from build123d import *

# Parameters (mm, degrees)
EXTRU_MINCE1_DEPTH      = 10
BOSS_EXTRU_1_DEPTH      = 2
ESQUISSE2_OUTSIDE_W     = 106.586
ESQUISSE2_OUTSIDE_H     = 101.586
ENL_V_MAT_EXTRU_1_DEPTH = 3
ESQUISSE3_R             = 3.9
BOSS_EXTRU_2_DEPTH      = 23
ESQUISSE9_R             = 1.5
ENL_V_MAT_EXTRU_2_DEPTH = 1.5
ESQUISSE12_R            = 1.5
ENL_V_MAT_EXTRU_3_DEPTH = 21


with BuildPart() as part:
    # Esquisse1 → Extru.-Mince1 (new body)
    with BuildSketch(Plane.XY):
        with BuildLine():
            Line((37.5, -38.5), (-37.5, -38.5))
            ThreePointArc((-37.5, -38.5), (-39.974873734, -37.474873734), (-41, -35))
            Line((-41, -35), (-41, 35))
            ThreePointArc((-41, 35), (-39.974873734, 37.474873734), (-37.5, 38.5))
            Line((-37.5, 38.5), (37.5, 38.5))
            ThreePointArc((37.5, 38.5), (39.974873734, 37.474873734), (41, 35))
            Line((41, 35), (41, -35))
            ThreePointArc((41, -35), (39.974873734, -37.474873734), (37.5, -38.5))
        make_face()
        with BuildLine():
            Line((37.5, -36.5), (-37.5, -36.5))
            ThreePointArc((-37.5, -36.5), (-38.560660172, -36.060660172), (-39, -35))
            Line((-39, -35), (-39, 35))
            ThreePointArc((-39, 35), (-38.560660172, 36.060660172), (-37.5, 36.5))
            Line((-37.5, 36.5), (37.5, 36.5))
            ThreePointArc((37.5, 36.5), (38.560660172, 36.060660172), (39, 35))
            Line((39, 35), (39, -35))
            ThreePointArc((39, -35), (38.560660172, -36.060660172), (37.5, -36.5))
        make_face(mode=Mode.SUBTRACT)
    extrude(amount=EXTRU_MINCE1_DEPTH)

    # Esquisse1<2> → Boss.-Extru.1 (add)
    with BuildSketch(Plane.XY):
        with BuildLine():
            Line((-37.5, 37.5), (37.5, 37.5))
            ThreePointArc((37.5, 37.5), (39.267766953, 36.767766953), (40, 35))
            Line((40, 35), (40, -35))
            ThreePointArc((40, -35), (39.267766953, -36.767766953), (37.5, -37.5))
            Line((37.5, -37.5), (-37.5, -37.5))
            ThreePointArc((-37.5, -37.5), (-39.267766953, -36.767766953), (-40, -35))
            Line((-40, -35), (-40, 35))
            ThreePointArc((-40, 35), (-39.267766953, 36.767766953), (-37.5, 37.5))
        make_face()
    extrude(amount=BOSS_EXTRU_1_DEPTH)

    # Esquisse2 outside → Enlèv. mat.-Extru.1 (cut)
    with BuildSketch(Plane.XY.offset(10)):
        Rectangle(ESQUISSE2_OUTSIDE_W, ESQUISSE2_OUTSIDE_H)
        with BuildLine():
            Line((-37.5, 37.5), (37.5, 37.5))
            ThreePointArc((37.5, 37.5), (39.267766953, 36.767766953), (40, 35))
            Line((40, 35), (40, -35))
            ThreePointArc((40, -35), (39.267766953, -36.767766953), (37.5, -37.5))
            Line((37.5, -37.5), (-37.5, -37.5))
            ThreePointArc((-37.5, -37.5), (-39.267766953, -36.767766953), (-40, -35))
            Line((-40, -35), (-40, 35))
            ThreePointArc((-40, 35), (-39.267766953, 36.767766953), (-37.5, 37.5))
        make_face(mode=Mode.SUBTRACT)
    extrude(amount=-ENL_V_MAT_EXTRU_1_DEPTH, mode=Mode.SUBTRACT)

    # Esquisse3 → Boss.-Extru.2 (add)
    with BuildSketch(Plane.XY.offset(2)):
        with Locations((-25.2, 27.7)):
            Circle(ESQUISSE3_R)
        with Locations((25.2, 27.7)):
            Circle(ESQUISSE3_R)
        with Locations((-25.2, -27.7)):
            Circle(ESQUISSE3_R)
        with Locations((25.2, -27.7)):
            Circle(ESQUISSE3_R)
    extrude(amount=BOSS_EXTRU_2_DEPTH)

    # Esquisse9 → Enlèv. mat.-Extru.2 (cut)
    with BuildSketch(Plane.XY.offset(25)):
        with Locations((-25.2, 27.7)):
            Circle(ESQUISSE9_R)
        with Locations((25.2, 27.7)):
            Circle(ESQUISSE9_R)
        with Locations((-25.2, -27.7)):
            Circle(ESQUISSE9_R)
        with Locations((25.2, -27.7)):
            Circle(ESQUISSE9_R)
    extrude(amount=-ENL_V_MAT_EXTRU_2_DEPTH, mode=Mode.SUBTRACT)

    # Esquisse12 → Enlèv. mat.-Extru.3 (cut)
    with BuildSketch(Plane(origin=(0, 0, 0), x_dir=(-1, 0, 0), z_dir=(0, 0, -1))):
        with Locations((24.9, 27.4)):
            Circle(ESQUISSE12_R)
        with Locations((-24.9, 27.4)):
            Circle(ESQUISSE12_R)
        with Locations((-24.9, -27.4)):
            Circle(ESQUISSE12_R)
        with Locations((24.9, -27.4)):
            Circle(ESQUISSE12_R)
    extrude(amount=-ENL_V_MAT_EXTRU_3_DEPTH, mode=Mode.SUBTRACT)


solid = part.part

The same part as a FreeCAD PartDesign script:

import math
import FreeCAD as App
import Part
import Sketcher

doc = App.newDocument("Part")
params = doc.addObject("Spreadsheet::Sheet", "Params")
for row, (alias, value) in enumerate([
    ("sketch1_radius", "3.5 mm"),
    ("sketch1_radius2", "1.5 mm"),
    ("sketch1_width", "75 mm"),
    ("sketch1_height", "70 mm"),
    ("pad1_length", "10 mm"),
    ("sketch2_radius", "2.5 mm"),
    ("sketch2_width", "75 mm"),
    ("sketch2_height", "70 mm"),
    ("pad2_length", "2 mm"),
    ("sketch3_radius", "2.5 mm"),
    ("sketch3_width", "75 mm"),
    ("sketch3_height", "70 mm"),
    ("pocket1_length", "3 mm"),
    ("sketch4_diameter", "7.8 mm"),
    ("pad3_length", "23 mm"),
    ("sketch5_diameter", "3 mm"),
    ("pocket2_length", "1.5 mm"),
    ("sketch6_diameter", "3 mm"),
    ("pocket3_length", "21 mm"),
], start=1):
    params.set(f"A{row}", alias)
    params.set(f"B{row}", "=" + value)
    params.setAlias(f"B{row}", alias)

body = doc.addObject("PartDesign::Body", "Body")

# Sketch on XY plane
sketch1 = body.newObject("Sketcher::SketchObject", "Sketch")
sketch1.AttachmentSupport = (doc.getObject("XY_Plane"), [""])
sketch1.MapMode = "FlatFace"
sketch1.addGeometry(Part.LineSegment(App.Vector(-37.5, -38.5, 0), App.Vector(37.5, -38.5, 0)), False)
sketch1.addGeometry(Part.ArcOfCircle(Part.Circle(App.Vector(37.5, -35, 0), App.Vector(0, 0, 1), 3.5), math.radians(-90), math.radians(0)), False)
sketch1.addGeometry(Part.LineSegment(App.Vector(41, -35, 0), App.Vector(41, 35, 0)), False)
sketch1.addGeometry(Part.ArcOfCircle(Part.Circle(App.Vector(37.5, 35, 0), App.Vector(0, 0, 1), 3.5), math.radians(0), math.radians(90)), False)
sketch1.addGeometry(Part.LineSegment(App.Vector(37.5, 38.5, 0), App.Vector(-37.5, 38.5, 0)), False)
sketch1.addGeometry(Part.ArcOfCircle(Part.Circle(App.Vector(-37.5, 35, 0), App.Vector(0, 0, 1), 3.5), math.radians(90), math.radians(180)), False)
sketch1.addGeometry(Part.LineSegment(App.Vector(-41, 35, 0), App.Vector(-41, -35, 0)), False)
sketch1.addGeometry(Part.ArcOfCircle(Part.Circle(App.Vector(-37.5, -35, 0), App.Vector(0, 0, 1), 3.5), math.radians(-180), math.radians(-90)), False)
sketch1.addGeometry(Part.LineSegment(App.Vector(37.5, -36.5, 0), App.Vector(-37.5, -36.5, 0)), False)
sketch1.addGeometry(Part.ArcOfCircle(Part.Circle(App.Vector(-37.5, -35, 0), App.Vector(0, 0, 1), 1.5), math.radians(180), math.radians(270)), False)
sketch1.addGeometry(Part.LineSegment(App.Vector(-39, -35, 0), App.Vector(-39, 35, 0)), False)
sketch1.addGeometry(Part.ArcOfCircle(Part.Circle(App.Vector(-37.5, 35, 0), App.Vector(0, 0, 1), 1.5), math.radians(90), math.radians(180)), False)
sketch1.addGeometry(Part.LineSegment(App.Vector(-37.5, 36.5, 0), App.Vector(37.5, 36.5, 0)), False)
sketch1.addGeometry(Part.ArcOfCircle(Part.Circle(App.Vector(37.5, 35, 0), App.Vector(0, 0, 1), 1.5), math.radians(0), math.radians(90)), False)
sketch1.addGeometry(Part.LineSegment(App.Vector(39, 35, 0), App.Vector(39, -35, 0)), False)
sketch1.addGeometry(Part.ArcOfCircle(Part.Circle(App.Vector(37.5, -35, 0), App.Vector(0, 0, 1), 1.5), math.radians(-90), math.radians(0)), False)
sketch1.addConstraint(Sketcher.Constraint("Tangent", 0, 2, 1, 1))
sketch1.addConstraint(Sketcher.Constraint("Tangent", 1, 2, 2, 1))
sketch1.addConstraint(Sketcher.Constraint("Tangent", 2, 2, 3, 1))
sketch1.addConstraint(Sketcher.Constraint("Tangent", 3, 2, 4, 1))
sketch1.addConstraint(Sketcher.Constraint("Tangent", 4, 2, 5, 1))
sketch1.addConstraint(Sketcher.Constraint("Tangent", 5, 2, 6, 1))
sketch1.addConstraint(Sketcher.Constraint("Tangent", 6, 2, 7, 1))
sketch1.addConstraint(Sketcher.Constraint("Tangent", 7, 2, 0, 1))
sketch1.addConstraint(Sketcher.Constraint("Tangent", 8, 2, 9, 2))
sketch1.addConstraint(Sketcher.Constraint("Tangent", 9, 1, 10, 1))
sketch1.addConstraint(Sketcher.Constraint("Tangent", 10, 2, 11, 2))
sketch1.addConstraint(Sketcher.Constraint("Tangent", 11, 1, 12, 1))
sketch1.addConstraint(Sketcher.Constraint("Tangent", 12, 2, 13, 2))
sketch1.addConstraint(Sketcher.Constraint("Tangent", 13, 1, 14, 1))
sketch1.addConstraint(Sketcher.Constraint("Tangent", 14, 2, 15, 2))
sketch1.addConstraint(Sketcher.Constraint("Tangent", 15, 1, 8, 1))
sketch1.addConstraint(Sketcher.Constraint("Horizontal", 0))
sketch1.addConstraint(Sketcher.Constraint("Vertical", 2))
sketch1.addConstraint(Sketcher.Constraint("Horizontal", 4))
sketch1.addConstraint(Sketcher.Constraint("Vertical", 6))
sketch1.addConstraint(Sketcher.Constraint("Horizontal", 8))
sketch1.addConstraint(Sketcher.Constraint("Vertical", 10))
sketch1.addConstraint(Sketcher.Constraint("Horizontal", 12))
sketch1.addConstraint(Sketcher.Constraint("Vertical", 14))
sketch1.addConstraint(Sketcher.Constraint("Coincident", 9, 3, 7, 3))
sketch1.addConstraint(Sketcher.Constraint("Coincident", 11, 3, 5, 3))
sketch1.addConstraint(Sketcher.Constraint("Coincident", 13, 3, 3, 3))
sketch1.addConstraint(Sketcher.Constraint("Equal", 1, 3))
sketch1.addConstraint(Sketcher.Constraint("Equal", 3, 5))
sketch1.addConstraint(Sketcher.Constraint("Equal", 5, 7))
sketch1.addConstraint(Sketcher.Constraint("Equal", 13, 15))
sketch1.addConstraint(Sketcher.Constraint("Symmetric", 1, 3, 5, 3, -1, 1))
sketch1.addConstraint(Sketcher.Constraint("Radius", 1, 3.5))
sketch1.addConstraint(Sketcher.Constraint("Radius", 9, 1.5))
sketch1.addConstraint(Sketcher.Constraint("DistanceX", 0, 1, 0, 2, 75.0))
sketch1.addConstraint(Sketcher.Constraint("DistanceY", 2, 1, 2, 2, 70.0))
sketch1.setExpression("Constraints[32]", "Params.sketch1_radius")
sketch1.setExpression("Constraints[33]", "Params.sketch1_radius2")
sketch1.setExpression("Constraints[34]", "Params.sketch1_width")
sketch1.setExpression("Constraints[35]", "Params.sketch1_height")
pad1 = body.newObject("PartDesign::Pad", "Pad")
pad1.Profile = sketch1
pad1.setExpression("Length", "Params.pad1_length")

# Sketch on XY plane
sketch2 = body.newObject("Sketcher::SketchObject", "Sketch001")
sketch2.AttachmentSupport = (doc.getObject("XY_Plane"), [""])
sketch2.MapMode = "FlatFace"
sketch2.addGeometry(Part.LineSegment(App.Vector(37.5, 37.5, 0), App.Vector(-37.5, 37.5, 0)), False)
sketch2.addGeometry(Part.ArcOfCircle(Part.Circle(App.Vector(-37.5, 35, 0), App.Vector(0, 0, 1), 2.5), math.radians(90), math.radians(180)), False)
sketch2.addGeometry(Part.LineSegment(App.Vector(-40, 35, 0), App.Vector(-40, -35, 0)), False)
sketch2.addGeometry(Part.ArcOfCircle(Part.Circle(App.Vector(-37.5, -35, 0), App.Vector(0, 0, 1), 2.5), math.radians(180), math.radians(270)), False)
sketch2.addGeometry(Part.LineSegment(App.Vector(-37.5, -37.5, 0), App.Vector(37.5, -37.5, 0)), False)
sketch2.addGeometry(Part.ArcOfCircle(Part.Circle(App.Vector(37.5, -35, 0), App.Vector(0, 0, 1), 2.5), math.radians(-90), math.radians(0)), False)
sketch2.addGeometry(Part.LineSegment(App.Vector(40, -35, 0), App.Vector(40, 35, 0)), False)
sketch2.addGeometry(Part.ArcOfCircle(Part.Circle(App.Vector(37.5, 35, 0), App.Vector(0, 0, 1), 2.5), math.radians(0), math.radians(90)), False)
sketch2.addConstraint(Sketcher.Constraint("Tangent", 0, 2, 1, 1))
sketch2.addConstraint(Sketcher.Constraint("Tangent", 1, 2, 2, 1))
sketch2.addConstraint(Sketcher.Constraint("Tangent", 2, 2, 3, 1))
sketch2.addConstraint(Sketcher.Constraint("Tangent", 3, 2, 4, 1))
sketch2.addConstraint(Sketcher.Constraint("Tangent", 4, 2, 5, 1))
sketch2.addConstraint(Sketcher.Constraint("Tangent", 5, 2, 6, 1))
sketch2.addConstraint(Sketcher.Constraint("Tangent", 6, 2, 7, 1))
sketch2.addConstraint(Sketcher.Constraint("Tangent", 7, 2, 0, 1))
sketch2.addConstraint(Sketcher.Constraint("Horizontal", 0))
sketch2.addConstraint(Sketcher.Constraint("Vertical", 2))
sketch2.addConstraint(Sketcher.Constraint("Horizontal", 4))
sketch2.addConstraint(Sketcher.Constraint("Vertical", 6))
sketch2.addConstraint(Sketcher.Constraint("Equal", 1, 3))
sketch2.addConstraint(Sketcher.Constraint("Equal", 3, 5))
sketch2.addConstraint(Sketcher.Constraint("Equal", 5, 7))
sketch2.addConstraint(Sketcher.Constraint("Symmetric", 1, 3, 5, 3, -1, 1))
sketch2.addConstraint(Sketcher.Constraint("Radius", 1, 2.5))
sketch2.addConstraint(Sketcher.Constraint("DistanceX", 0, 2, 0, 1, 75.0))
sketch2.addConstraint(Sketcher.Constraint("DistanceY", 2, 2, 2, 1, 70.0))
sketch2.setExpression("Constraints[16]", "Params.sketch2_radius")
sketch2.setExpression("Constraints[17]", "Params.sketch2_width")
sketch2.setExpression("Constraints[18]", "Params.sketch2_height")
pad2 = body.newObject("PartDesign::Pad", "Pad001")
pad2.Profile = sketch2
pad2.setExpression("Length", "Params.pad2_length")

# Sketch on XY plane
sketch3 = body.newObject("Sketcher::SketchObject", "Sketch002")
sketch3.AttachmentSupport = (doc.getObject("XY_Plane"), [""])
sketch3.MapMode = "FlatFace"
sketch3.AttachmentOffset = App.Placement(App.Vector(0, 0, 10), App.Rotation())
sketch3.addGeometry(Part.LineSegment(App.Vector(-53.293, 50.793, 0), App.Vector(-53.293, -50.793, 0)), False)
sketch3.addGeometry(Part.LineSegment(App.Vector(-53.293, -50.793, 0), App.Vector(53.293, -50.793, 0)), False)
sketch3.addGeometry(Part.LineSegment(App.Vector(53.293, -50.793, 0), App.Vector(53.293, 50.793, 0)), False)
sketch3.addGeometry(Part.LineSegment(App.Vector(53.293, 50.793, 0), App.Vector(-53.293, 50.793, 0)), False)
sketch3.addGeometry(Part.ArcOfCircle(Part.Circle(App.Vector(-37.5, 35, 0), App.Vector(0, 0, 1), 2.5), math.radians(90), math.radians(180)), False)
sketch3.addGeometry(Part.LineSegment(App.Vector(-37.5, 37.5, 0), App.Vector(37.5, 37.5, 0)), False)
sketch3.addGeometry(Part.ArcOfCircle(Part.Circle(App.Vector(37.5, 35, 0), App.Vector(0, 0, 1), 2.5), math.radians(0), math.radians(90)), False)
sketch3.addGeometry(Part.LineSegment(App.Vector(40, 35, 0), App.Vector(40, -35, 0)), False)
sketch3.addGeometry(Part.ArcOfCircle(Part.Circle(App.Vector(37.5, -35, 0), App.Vector(0, 0, 1), 2.5), math.radians(-90), math.radians(0)), False)
sketch3.addGeometry(Part.LineSegment(App.Vector(37.5, -37.5, 0), App.Vector(-37.5, -37.5, 0)), False)
sketch3.addGeometry(Part.ArcOfCircle(Part.Circle(App.Vector(-37.5, -35, 0), App.Vector(0, 0, 1), 2.5), math.radians(180), math.radians(270)), False)
sketch3.addGeometry(Part.LineSegment(App.Vector(-40, -35, 0), App.Vector(-40, 35, 0)), False)
sketch3.addConstraint(Sketcher.Constraint("Coincident", 0, 2, 1, 1))
sketch3.addConstraint(Sketcher.Constraint("Coincident", 1, 2, 2, 1))
sketch3.addConstraint(Sketcher.Constraint("Coincident", 2, 2, 3, 1))
sketch3.addConstraint(Sketcher.Constraint("Coincident", 3, 2, 0, 1))
sketch3.addConstraint(Sketcher.Constraint("Tangent", 4, 1, 5, 1))
sketch3.addConstraint(Sketcher.Constraint("Tangent", 5, 2, 6, 2))
sketch3.addConstraint(Sketcher.Constraint("Tangent", 6, 1, 7, 1))
sketch3.addConstraint(Sketcher.Constraint("Tangent", 7, 2, 8, 2))
sketch3.addConstraint(Sketcher.Constraint("Tangent", 8, 1, 9, 1))
sketch3.addConstraint(Sketcher.Constraint("Tangent", 9, 2, 10, 2))
sketch3.addConstraint(Sketcher.Constraint("Tangent", 10, 1, 11, 1))
sketch3.addConstraint(Sketcher.Constraint("Tangent", 11, 2, 4, 2))
sketch3.addConstraint(Sketcher.Constraint("Vertical", 0))
sketch3.addConstraint(Sketcher.Constraint("Horizontal", 1))
sketch3.addConstraint(Sketcher.Constraint("Vertical", 2))
sketch3.addConstraint(Sketcher.Constraint("Horizontal", 3))
sketch3.addConstraint(Sketcher.Constraint("Horizontal", 5))
sketch3.addConstraint(Sketcher.Constraint("Vertical", 7))
sketch3.addConstraint(Sketcher.Constraint("Horizontal", 9))
sketch3.addConstraint(Sketcher.Constraint("Vertical", 11))
sketch3.addConstraint(Sketcher.Constraint("Equal", 4, 6))
sketch3.addConstraint(Sketcher.Constraint("Equal", 6, 8))
sketch3.addConstraint(Sketcher.Constraint("Equal", 8, 10))
sketch3.addConstraint(Sketcher.Constraint("Symmetric", 4, 3, 8, 3, -1, 1))
sketch3.addConstraint(Sketcher.Constraint("Symmetric", 0, 2, 2, 2, -1, 1))
sketch3.addConstraint(Sketcher.Constraint("Radius", 4, 2.5))
sketch3.addConstraint(Sketcher.Constraint("DistanceX", 5, 1, 5, 2, 75.0))
sketch3.addConstraint(Sketcher.Constraint("DistanceY", 7, 2, 7, 1, 70.0))
sketch3.addConstraint(Sketcher.Constraint("DistanceX", 1, 1, 1, 2, 106.586))
sketch3.addConstraint(Sketcher.Constraint("DistanceY", 0, 2, 0, 1, 101.586))
sketch3.setExpression("Constraints[25]", "Params.sketch3_radius")
sketch3.setExpression("Constraints[26]", "Params.sketch3_width")
sketch3.setExpression("Constraints[27]", "Params.sketch3_height")
pocket1 = body.newObject("PartDesign::Pocket", "Pocket")
pocket1.Profile = sketch3
pocket1.setExpression("Length", "Params.pocket1_length")

# Sketch on XY plane
sketch4 = body.newObject("Sketcher::SketchObject", "Sketch003")
sketch4.AttachmentSupport = (doc.getObject("XY_Plane"), [""])
sketch4.MapMode = "FlatFace"
sketch4.AttachmentOffset = App.Placement(App.Vector(0, 0, 2), App.Rotation())
sketch4.addGeometry(Part.Circle(App.Vector(-25.2, 27.7, 0), App.Vector(0, 0, 1), 3.9), False)
sketch4.addGeometry(Part.Circle(App.Vector(25.2, 27.7, 0), App.Vector(0, 0, 1), 3.9), False)
sketch4.addGeometry(Part.Circle(App.Vector(-25.2, -27.7, 0), App.Vector(0, 0, 1), 3.9), False)
sketch4.addGeometry(Part.Circle(App.Vector(25.2, -27.7, 0), App.Vector(0, 0, 1), 3.9), False)
sketch4.addConstraint(Sketcher.Constraint("Equal", 0, 1))
sketch4.addConstraint(Sketcher.Constraint("Equal", 1, 2))
sketch4.addConstraint(Sketcher.Constraint("Equal", 2, 3))
sketch4.addConstraint(Sketcher.Constraint("Symmetric", 1, 3, 2, 3, -1, 1))
sketch4.addConstraint(Sketcher.Constraint("Symmetric", 0, 3, 3, 3, -1, 1))
sketch4.addConstraint(Sketcher.Constraint("Symmetric", 0, 3, 1, 3, -2))
sketch4.addConstraint(Sketcher.Constraint("Diameter", 0, 7.8))
sketch4.addConstraint(Sketcher.Constraint("DistanceX", 0, 3, -1, 1, 25.2))
sketch4.addConstraint(Sketcher.Constraint("DistanceY", -1, 1, 0, 3, 27.7))
sketch4.setExpression("Constraints[6]", "Params.sketch4_diameter")
pad3 = body.newObject("PartDesign::Pad", "Pad002")
pad3.Profile = sketch4
pad3.setExpression("Length", "Params.pad3_length")

# Sketch on XY plane
sketch5 = body.newObject("Sketcher::SketchObject", "Sketch004")
sketch5.AttachmentSupport = (doc.getObject("XY_Plane"), [""])
sketch5.MapMode = "FlatFace"
sketch5.AttachmentOffset = App.Placement(App.Vector(0, 0, 25), App.Rotation())
sketch5.addGeometry(Part.Circle(App.Vector(-25.2, 27.7, 0), App.Vector(0, 0, 1), 1.5), False)
sketch5.addGeometry(Part.Circle(App.Vector(25.2, 27.7, 0), App.Vector(0, 0, 1), 1.5), False)
sketch5.addGeometry(Part.Circle(App.Vector(-25.2, -27.7, 0), App.Vector(0, 0, 1), 1.5), False)
sketch5.addGeometry(Part.Circle(App.Vector(25.2, -27.7, 0), App.Vector(0, 0, 1), 1.5), False)
sketch5.addConstraint(Sketcher.Constraint("Equal", 0, 1))
sketch5.addConstraint(Sketcher.Constraint("Equal", 1, 2))
sketch5.addConstraint(Sketcher.Constraint("Equal", 2, 3))
sketch5.addConstraint(Sketcher.Constraint("Symmetric", 1, 3, 2, 3, -1, 1))
sketch5.addConstraint(Sketcher.Constraint("Symmetric", 0, 3, 3, 3, -1, 1))
sketch5.addConstraint(Sketcher.Constraint("Symmetric", 0, 3, 1, 3, -2))
sketch5.addConstraint(Sketcher.Constraint("Diameter", 0, 3.0))
sketch5.addConstraint(Sketcher.Constraint("DistanceX", 0, 3, -1, 1, 25.2))
sketch5.addConstraint(Sketcher.Constraint("DistanceY", -1, 1, 0, 3, 27.7))
sketch5.setExpression("Constraints[6]", "Params.sketch5_diameter")
pocket2 = body.newObject("PartDesign::Pocket", "Pocket001")
pocket2.Profile = sketch5
pocket2.setExpression("Length", "Params.pocket2_length")

# Sketch on XY plane
sketch6 = body.newObject("Sketcher::SketchObject", "Sketch005")
sketch6.AttachmentSupport = (doc.getObject("XY_Plane"), [""])
sketch6.MapMode = "FlatFace"
sketch6.addGeometry(Part.Circle(App.Vector(-24.9, 27.4, 0), App.Vector(0, 0, 1), 1.5), False)
sketch6.addGeometry(Part.Circle(App.Vector(24.9, 27.4, 0), App.Vector(0, 0, 1), 1.5), False)
sketch6.addGeometry(Part.Circle(App.Vector(24.9, -27.4, 0), App.Vector(0, 0, 1), 1.5), False)
sketch6.addGeometry(Part.Circle(App.Vector(-24.9, -27.4, 0), App.Vector(0, 0, 1), 1.5), False)
sketch6.addConstraint(Sketcher.Constraint("Equal", 0, 1))
sketch6.addConstraint(Sketcher.Constraint("Equal", 1, 2))
sketch6.addConstraint(Sketcher.Constraint("Equal", 2, 3))
sketch6.addConstraint(Sketcher.Constraint("Symmetric", 0, 3, 2, 3, -1, 1))
sketch6.addConstraint(Sketcher.Constraint("Symmetric", 1, 3, 3, 3, -1, 1))
sketch6.addConstraint(Sketcher.Constraint("Symmetric", 0, 3, 1, 3, -2))
sketch6.addConstraint(Sketcher.Constraint("Diameter", 0, 3.0))
sketch6.addConstraint(Sketcher.Constraint("DistanceX", 0, 3, -1, 1, 24.9))
sketch6.addConstraint(Sketcher.Constraint("DistanceY", -1, 1, 0, 3, 27.4))
sketch6.setExpression("Constraints[6]", "Params.sketch6_diameter")
pocket3 = body.newObject("PartDesign::Pocket", "Pocket002")
pocket3.Profile = sketch6
pocket3.setExpression("Length", "Params.pocket3_length")
pocket3.Reversed = True

doc.recompute()
